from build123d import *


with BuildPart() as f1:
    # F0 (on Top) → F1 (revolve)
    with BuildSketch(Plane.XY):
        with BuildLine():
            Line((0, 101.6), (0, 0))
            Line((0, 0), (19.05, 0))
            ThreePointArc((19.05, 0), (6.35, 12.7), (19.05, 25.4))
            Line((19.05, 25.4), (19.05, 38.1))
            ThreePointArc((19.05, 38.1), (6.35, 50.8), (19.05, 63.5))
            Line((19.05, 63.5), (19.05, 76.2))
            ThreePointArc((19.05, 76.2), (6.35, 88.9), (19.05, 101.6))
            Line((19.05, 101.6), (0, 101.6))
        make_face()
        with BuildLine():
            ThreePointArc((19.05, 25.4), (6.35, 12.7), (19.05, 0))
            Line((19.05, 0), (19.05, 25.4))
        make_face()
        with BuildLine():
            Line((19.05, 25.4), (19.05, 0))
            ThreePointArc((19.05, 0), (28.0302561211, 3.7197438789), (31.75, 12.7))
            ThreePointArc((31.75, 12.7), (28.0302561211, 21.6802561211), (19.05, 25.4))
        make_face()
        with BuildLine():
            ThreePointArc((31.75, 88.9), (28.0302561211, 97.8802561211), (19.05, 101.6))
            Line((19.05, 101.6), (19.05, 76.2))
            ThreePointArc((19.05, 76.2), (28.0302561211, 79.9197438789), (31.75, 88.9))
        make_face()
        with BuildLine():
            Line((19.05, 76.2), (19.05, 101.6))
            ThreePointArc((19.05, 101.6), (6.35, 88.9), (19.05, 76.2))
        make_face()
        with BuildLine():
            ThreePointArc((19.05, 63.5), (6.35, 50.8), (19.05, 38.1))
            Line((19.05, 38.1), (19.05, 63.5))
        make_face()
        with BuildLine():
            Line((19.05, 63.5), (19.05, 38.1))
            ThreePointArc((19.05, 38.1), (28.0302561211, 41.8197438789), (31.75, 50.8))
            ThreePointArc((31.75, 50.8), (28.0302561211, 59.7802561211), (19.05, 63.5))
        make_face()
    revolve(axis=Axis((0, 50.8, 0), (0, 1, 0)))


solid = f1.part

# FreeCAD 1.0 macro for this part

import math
import FreeCAD as App
import Part
import Sketcher
from FreeCAD import Vector
Q = App.Units.Quantity

doc = App.newDocument("Part")
body = doc.addObject("PartDesign::Body", "Body")

sketch1 = body.newObject("Sketcher::SketchObject", "Sketch")
sketch1.AttachmentSupport = (doc.getObject("XY_Plane"), [""])
sketch1.MapMode = "FlatFace"
sketch1.addGeometry([
    Part.LineSegment(Vector(0, 102, 0), Vector(0, 0, 0)),
    Part.LineSegment(Vector(0, 0, 0), Vector(19, 0, 0)),
    Part.ArcOfCircle(Part.Circle(Vector(19, 13, 0), Vector(0, 0, 1), 13), math.radians(-90), math.radians(0)),
    Part.ArcOfCircle(Part.Circle(Vector(19, 13, 0), Vector(0, 0, 1), 13), math.radians(0), math.radians(90)),
    Part.LineSegment(Vector(19, 25, 0), Vector(19, 38, 0)),
    Part.ArcOfCircle(Part.Circle(Vector(19, 51, 0), Vector(0, 0, 1), 13), math.radians(-90), math.radians(0)),
    Part.ArcOfCircle(Part.Circle(Vector(19, 51, 0), Vector(0, 0, 1), 13), math.radians(0), math.radians(90)),
    Part.LineSegment(Vector(19, 64, 0), Vector(19, 76, 0)),
    Part.ArcOfCircle(Part.Circle(Vector(19, 89, 0), Vector(0, 0, 1), 13), math.radians(-90), math.radians(0)),
    Part.ArcOfCircle(Part.Circle(Vector(19, 89, 0), Vector(0, 0, 1), 13), math.radians(0), math.radians(90)),
    Part.LineSegment(Vector(19, 102, 0), Vector(0, 102, 0)),
], False)
sketch1.addConstraint([
    Sketcher.Constraint("Coincident", 0, 2, 1, 1),
    Sketcher.Constraint("Tangent", 1, 2, 2, 1),
    Sketcher.Constraint("Tangent", 2, 2, 3, 1),
    Sketcher.Constraint("Coincident", 3, 2, 4, 1),
    Sketcher.Constraint("Coincident", 4, 2, 5, 1),
    Sketcher.Constraint("Tangent", 5, 2, 6, 1),
    Sketcher.Constraint("Coincident", 6, 2, 7, 1),
    Sketcher.Constraint("Coincident", 7, 2, 8, 1),
    Sketcher.Constraint("Tangent", 8, 2, 9, 1),
    Sketcher.Constraint("Tangent", 9, 2, 10, 1),
    Sketcher.Constraint("Coincident", 10, 2, 0, 1),
    Sketcher.Constraint("Vertical", 0),
    Sketcher.Constraint("Horizontal", 1),
    Sketcher.Constraint("Vertical", 4),
    Sketcher.Constraint("Vertical", 7),
    Sketcher.Constraint("Horizontal", 10),
    Sketcher.Constraint("Coincident", 0, 2, -1, 1),
    Sketcher.Constraint("Equal", 2, 3),
    Sketcher.Constraint("Equal", 3, 5),
    Sketcher.Constraint("Equal", 5, 6),
    Sketcher.Constraint("Equal", 6, 8),
    Sketcher.Constraint("Equal", 8, 9),
    Sketcher.Constraint("Horizontal", 3, 3, 2, 2),
    Sketcher.Constraint("Horizontal", 6, 3, 5, 2),
    Sketcher.Constraint("Horizontal", 9, 3, 8, 2),
    Sketcher.Constraint("Vertical", 3, 3, 5, 3),
    Sketcher.Constraint("Vertical", 6, 3, 8, 3),
    Sketcher.Constraint("Vertical", 1, 2, 3, 2),
    Sketcher.Constraint("Vertical", 4, 2, 6, 2),
    Sketcher.Constraint("Equal", 4, 7),
    Sketcher.Constraint("Radius", 2, Q("0.5 in")),
    Sketcher.Constraint("DistanceY", 0, 2, 0, 1, Q("4 in")),
    Sketcher.Constraint("DistanceX", 1, 1, 1, 2, Q("0.75 in")),
])
revolution = body.newObject("PartDesign::Revolution", "Revolution")
revolution.Profile = sketch1
revolution.ReferenceAxis = (sketch1, ["V_Axis"])
revolution.Angle = 360

doc.recompute()
